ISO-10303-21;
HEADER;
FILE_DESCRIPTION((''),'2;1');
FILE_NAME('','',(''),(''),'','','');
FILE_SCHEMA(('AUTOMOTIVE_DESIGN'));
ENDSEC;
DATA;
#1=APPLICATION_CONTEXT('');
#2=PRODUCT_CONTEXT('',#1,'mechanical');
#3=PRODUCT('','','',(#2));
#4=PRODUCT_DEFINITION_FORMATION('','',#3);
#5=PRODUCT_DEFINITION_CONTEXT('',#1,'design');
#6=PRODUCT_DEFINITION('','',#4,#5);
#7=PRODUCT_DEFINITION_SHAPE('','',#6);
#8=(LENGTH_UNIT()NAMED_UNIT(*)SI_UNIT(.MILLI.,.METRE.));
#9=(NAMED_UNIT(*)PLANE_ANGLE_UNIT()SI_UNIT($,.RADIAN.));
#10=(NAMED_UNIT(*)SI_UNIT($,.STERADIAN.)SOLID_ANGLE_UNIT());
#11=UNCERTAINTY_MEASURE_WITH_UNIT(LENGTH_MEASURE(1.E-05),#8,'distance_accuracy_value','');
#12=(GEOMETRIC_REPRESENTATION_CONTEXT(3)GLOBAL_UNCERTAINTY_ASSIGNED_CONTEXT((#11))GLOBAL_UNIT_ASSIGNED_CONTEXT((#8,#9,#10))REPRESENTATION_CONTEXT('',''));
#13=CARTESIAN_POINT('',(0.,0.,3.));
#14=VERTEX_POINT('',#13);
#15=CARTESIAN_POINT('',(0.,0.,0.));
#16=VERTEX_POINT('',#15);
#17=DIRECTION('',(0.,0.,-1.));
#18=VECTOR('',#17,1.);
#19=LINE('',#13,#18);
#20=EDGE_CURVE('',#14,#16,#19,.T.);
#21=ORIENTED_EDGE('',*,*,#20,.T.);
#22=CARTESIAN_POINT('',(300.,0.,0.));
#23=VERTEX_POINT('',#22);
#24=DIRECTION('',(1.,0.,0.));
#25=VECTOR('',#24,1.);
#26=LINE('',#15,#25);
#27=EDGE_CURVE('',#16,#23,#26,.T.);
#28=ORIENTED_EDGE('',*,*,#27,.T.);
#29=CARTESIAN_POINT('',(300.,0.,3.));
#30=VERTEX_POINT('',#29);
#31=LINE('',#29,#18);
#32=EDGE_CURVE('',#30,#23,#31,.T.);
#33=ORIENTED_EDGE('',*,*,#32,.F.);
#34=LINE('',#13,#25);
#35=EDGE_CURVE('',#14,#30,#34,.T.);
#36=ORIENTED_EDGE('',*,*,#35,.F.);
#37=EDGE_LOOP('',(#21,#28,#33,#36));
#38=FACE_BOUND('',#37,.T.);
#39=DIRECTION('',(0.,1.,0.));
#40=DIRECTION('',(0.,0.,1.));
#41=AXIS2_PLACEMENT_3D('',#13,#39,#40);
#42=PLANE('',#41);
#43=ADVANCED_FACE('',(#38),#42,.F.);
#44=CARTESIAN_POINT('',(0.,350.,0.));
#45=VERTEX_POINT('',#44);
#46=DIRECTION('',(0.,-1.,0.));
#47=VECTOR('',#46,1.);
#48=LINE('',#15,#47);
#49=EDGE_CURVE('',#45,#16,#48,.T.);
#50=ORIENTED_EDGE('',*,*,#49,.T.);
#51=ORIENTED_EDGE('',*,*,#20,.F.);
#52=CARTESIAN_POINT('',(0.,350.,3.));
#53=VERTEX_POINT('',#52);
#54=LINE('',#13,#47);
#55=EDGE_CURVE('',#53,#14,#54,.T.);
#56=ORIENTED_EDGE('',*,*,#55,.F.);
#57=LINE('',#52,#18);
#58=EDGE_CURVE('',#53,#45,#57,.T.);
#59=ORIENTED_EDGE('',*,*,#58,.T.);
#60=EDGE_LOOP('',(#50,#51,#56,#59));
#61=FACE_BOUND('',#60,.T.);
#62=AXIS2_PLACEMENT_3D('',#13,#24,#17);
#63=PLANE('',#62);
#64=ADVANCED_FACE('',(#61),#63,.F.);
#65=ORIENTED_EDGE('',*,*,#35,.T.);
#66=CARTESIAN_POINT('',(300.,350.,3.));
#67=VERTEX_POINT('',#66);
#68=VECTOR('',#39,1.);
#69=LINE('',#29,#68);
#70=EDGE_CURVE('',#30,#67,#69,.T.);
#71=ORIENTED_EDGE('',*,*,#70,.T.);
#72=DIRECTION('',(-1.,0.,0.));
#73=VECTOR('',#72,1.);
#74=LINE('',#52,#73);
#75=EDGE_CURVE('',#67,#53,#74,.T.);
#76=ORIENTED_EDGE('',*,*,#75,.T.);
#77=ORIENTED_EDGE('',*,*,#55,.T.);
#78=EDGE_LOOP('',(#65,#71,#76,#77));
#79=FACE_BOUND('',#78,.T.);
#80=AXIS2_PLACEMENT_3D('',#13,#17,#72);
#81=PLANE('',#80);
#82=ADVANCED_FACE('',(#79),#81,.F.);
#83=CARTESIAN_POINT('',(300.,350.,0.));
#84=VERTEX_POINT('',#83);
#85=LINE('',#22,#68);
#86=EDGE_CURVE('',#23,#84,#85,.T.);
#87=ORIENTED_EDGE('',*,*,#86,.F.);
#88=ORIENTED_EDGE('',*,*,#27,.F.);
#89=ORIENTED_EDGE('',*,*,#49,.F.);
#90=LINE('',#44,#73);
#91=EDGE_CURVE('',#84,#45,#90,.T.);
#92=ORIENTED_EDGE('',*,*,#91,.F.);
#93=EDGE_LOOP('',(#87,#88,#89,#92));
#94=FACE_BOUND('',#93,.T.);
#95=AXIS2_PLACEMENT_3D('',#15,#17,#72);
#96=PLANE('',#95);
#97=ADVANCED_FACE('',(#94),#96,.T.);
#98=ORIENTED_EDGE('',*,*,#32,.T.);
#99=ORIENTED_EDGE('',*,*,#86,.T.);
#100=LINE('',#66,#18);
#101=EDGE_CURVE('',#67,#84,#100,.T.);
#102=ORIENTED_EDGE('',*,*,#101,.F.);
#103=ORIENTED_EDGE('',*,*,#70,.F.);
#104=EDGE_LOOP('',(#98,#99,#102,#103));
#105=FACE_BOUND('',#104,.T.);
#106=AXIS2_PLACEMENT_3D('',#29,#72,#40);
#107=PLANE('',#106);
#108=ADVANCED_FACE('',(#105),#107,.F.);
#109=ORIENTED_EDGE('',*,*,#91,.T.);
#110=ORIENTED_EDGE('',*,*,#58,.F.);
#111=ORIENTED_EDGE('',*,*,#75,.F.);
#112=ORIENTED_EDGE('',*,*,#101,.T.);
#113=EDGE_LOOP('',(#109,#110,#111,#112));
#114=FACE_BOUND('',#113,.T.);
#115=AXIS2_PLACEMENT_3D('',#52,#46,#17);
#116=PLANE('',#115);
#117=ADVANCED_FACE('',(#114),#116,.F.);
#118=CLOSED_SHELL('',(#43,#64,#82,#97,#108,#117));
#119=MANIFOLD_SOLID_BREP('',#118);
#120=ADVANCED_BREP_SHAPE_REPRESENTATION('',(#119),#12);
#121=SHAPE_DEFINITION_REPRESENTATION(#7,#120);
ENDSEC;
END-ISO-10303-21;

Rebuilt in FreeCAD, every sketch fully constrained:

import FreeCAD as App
import Part
import Sketcher
Q = App.Units.Quantity

doc = App.newDocument("Part")
params = doc.addObject("Spreadsheet::Sheet", "Params")
for row, (alias, value) in enumerate([
    ("sketch1_width", "300 mm"),
    ("sketch1_height", "350 mm"),
    ("pad1_length", "3 mm"),
], start=1):
    params.set(f"A{row}", alias)
    params.set(f"B{row}", "=" + value)
    params.setAlias(f"B{row}", alias)

body = doc.addObject("PartDesign::Body", "Body")

# Sketch on XY plane
sketch1 = body.newObject("Sketcher::SketchObject", "Sketch")
sketch1.AttachmentSupport = (doc.getObject("XY_Plane"), [""])
sketch1.MapMode = "FlatFace"
sketch1.addGeometry([
    Part.LineSegment(App.Vector(0, 350, 0), App.Vector(0, 0, 0)),
    Part.LineSegment(App.Vector(0, 0, 0), App.Vector(300, 0, 0)),
    Part.LineSegment(App.Vector(300, 0, 0), App.Vector(300, 350, 0)),
    Part.LineSegment(App.Vector(300, 350, 0), App.Vector(0, 350, 0)),
], False)
sketch1.addConstraint([
    Sketcher.Constraint("Coincident", 0, 2, 1, 1),
    Sketcher.Constraint("Coincident", 1, 2, 2, 1),
    Sketcher.Constraint("Coincident", 2, 2, 3, 1),
    Sketcher.Constraint("Coincident", 3, 2, 0, 1),
    Sketcher.Constraint("Vertical", 0),
    Sketcher.Constraint("Horizontal", 1),
    Sketcher.Constraint("Vertical", 2),
    Sketcher.Constraint("Horizontal", 3),
    Sketcher.Constraint("Coincident", 0, 2, -1, 1),
    Sketcher.Constraint("DistanceX", 1, 1, 1, 2, Q("300 mm")),
    Sketcher.Constraint("DistanceY", 0, 2, 0, 1, Q("350 mm")),
])
sketch1.setExpression("Constraints[9]", "Params.sketch1_width")
sketch1.setExpression("Constraints[10]", "Params.sketch1_height")
pad1 = body.newObject("PartDesign::Pad", "Pad")
pad1.Profile = sketch1
pad1.setExpression("Length", "Params.pad1_length")

doc.recompute()
